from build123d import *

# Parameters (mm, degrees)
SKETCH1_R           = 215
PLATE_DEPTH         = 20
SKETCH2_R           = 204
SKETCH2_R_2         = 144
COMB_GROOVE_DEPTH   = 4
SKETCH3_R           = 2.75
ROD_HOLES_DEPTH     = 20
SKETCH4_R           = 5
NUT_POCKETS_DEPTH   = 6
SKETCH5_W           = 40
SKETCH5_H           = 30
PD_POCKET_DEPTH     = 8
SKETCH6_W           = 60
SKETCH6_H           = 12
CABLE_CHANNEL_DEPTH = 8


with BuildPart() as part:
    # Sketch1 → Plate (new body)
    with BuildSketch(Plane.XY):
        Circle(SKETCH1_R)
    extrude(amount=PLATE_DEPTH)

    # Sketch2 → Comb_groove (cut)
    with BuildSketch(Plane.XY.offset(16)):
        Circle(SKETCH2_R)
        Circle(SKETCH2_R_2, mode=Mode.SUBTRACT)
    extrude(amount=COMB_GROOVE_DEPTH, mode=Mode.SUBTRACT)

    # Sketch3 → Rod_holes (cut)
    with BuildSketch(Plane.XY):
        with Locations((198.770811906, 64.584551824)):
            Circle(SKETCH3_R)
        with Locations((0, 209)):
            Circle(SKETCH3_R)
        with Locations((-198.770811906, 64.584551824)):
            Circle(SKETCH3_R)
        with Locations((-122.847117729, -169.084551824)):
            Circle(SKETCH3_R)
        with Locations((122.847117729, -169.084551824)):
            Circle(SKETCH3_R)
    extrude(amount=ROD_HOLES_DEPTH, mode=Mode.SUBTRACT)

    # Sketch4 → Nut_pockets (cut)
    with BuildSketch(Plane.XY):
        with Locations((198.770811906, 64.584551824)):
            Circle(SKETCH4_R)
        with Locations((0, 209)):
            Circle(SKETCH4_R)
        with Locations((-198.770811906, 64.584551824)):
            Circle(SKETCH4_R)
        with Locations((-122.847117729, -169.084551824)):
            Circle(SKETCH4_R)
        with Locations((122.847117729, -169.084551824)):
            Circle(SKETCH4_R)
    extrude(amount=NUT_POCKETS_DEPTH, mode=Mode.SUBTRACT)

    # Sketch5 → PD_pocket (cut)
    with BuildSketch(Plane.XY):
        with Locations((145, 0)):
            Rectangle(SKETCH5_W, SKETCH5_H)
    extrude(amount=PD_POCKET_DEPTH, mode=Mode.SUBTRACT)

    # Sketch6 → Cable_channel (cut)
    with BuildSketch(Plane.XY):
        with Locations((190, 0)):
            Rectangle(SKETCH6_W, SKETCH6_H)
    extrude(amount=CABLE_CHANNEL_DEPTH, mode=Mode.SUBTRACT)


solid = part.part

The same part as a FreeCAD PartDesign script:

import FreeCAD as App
import Part
import Sketcher
from FreeCAD import Vector
Q = App.Units.Quantity

doc = App.newDocument("Part")
body = doc.addObject("PartDesign::Body", "Body")

# Sketch on XY plane
sketch1 = body.newObject("Sketcher::SketchObject", "Sketch")
sketch1.AttachmentSupport = (doc.getObject("XY_Plane"), [""])
sketch1.MapMode = "FlatFace"
sketch1.addGeometry(Part.Circle(Vector(0, 0, 0), Vector(0, 0, 1), 215), False)
sketch1.addConstraint([
    Sketcher.Constraint("Coincident", 0, 3, -1, 1),
    Sketcher.Constraint("Diameter", 0, Q("430 mm")),
])
pad1 = body.newObject("PartDesign::Pad", "Pad")
pad1.Profile = sketch1
pad1.Length = 20

# Sketch on XY plane
sketch2 = body.newObject("Sketcher::SketchObject", "Sketch001")
sketch2.AttachmentSupport = (doc.getObject("XY_Plane"), [""])
sketch2.MapMode = "FlatFace"
sketch2.AttachmentOffset = App.Placement(Vector(0, 0, 16), App.Rotation())
sketch2.addGeometry([
    Part.Circle(Vector(0, 0, 0), Vector(0, 0, 1), 204),
    Part.Circle(Vector(0, 0, 0), Vector(0, 0, 1), 144),
], False)
sketch2.addConstraint([
    Sketcher.Constraint("Coincident", 0, 3, -1, 1),
    Sketcher.Constraint("Coincident", 1, 3, -1, 1),
    Sketcher.Constraint("Diameter", 0, Q("408 mm")),
    Sketcher.Constraint("Diameter", 1, Q("288 mm")),
])
pocket1 = body.newObject("PartDesign::Pocket", "Pocket")
pocket1.Profile = sketch2
pocket1.Length = 4
pocket1.Reversed = True

# Sketch on XY plane
sketch3 = body.newObject("Sketcher::SketchObject", "Sketch002")
sketch3.AttachmentSupport = (doc.getObject("XY_Plane"), [""])
sketch3.MapMode = "FlatFace"
sketch3.addGeometry([
    Part.Circle(Vector(198.8, 64.6, 0), Vector(0, 0, 1), 2.8),  # 0
    Part.Circle(Vector(0, 209, 0), Vector(0, 0, 1), 2.8),  # 1
    Part.Circle(Vector(-198.8, 64.6, 0), Vector(0, 0, 1), 2.8),  # 2
    Part.Circle(Vector(-122.8, -169.1, 0), Vector(0, 0, 1), 2.8),  # 3
    Part.Circle(Vector(122.8, -169.1, 0), Vector(0, 0, 1), 2.8),  # 4
], False)
sketch3.addConstraint([
    Sketcher.Constraint("Equal", 0, 1),
    Sketcher.Constraint("Equal", 1, 2),
    Sketcher.Constraint("Equal", 2, 3),
    Sketcher.Constraint("Equal", 3, 4),
    Sketcher.Constraint("Symmetric", 0, 3, 2, 3, -2),
    Sketcher.Constraint("Symmetric", 3, 3, 4, 3, -2),
    Sketcher.Constraint("PointOnObject", 1, 3, -2),
    Sketcher.Constraint("Diameter", 0, Q("5.5 mm")),
    Sketcher.Constraint("DistanceY", -1, 1, 1, 3, Q("209 mm")),
    Sketcher.Constraint("DistanceX", -1, 1, 0, 3, Q("198.770812 mm")),
    Sketcher.Constraint("DistanceY", -1, 1, 0, 3, Q("64.584552 mm")),
    Sketcher.Constraint("DistanceY", 3, 3, -1, 1, Q("169.084552 mm")),
    Sketcher.Constraint("DistanceX", 3, 3, 0, 3, Q("321.61793 mm")),
])
pocket2 = body.newObject("PartDesign::Pocket", "Pocket001")
pocket2.Profile = sketch3
pocket2.Length = 20
pocket2.Reversed = True

# Sketch on XY plane
sketch4 = body.newObject("Sketcher::SketchObject", "Sketch003")
sketch4.AttachmentSupport = (doc.getObject("XY_Plane"), [""])
sketch4.MapMode = "FlatFace"
sketch4.addGeometry([
    Part.Circle(Vector(199, 65, 0), Vector(0, 0, 1), 5),  # 0
    Part.Circle(Vector(0, 209, 0), Vector(0, 0, 1), 5),  # 1
    Part.Circle(Vector(-199, 65, 0), Vector(0, 0, 1), 5),  # 2
    Part.Circle(Vector(-123, -169, 0), Vector(0, 0, 1), 5),  # 3
    Part.Circle(Vector(123, -169, 0), Vector(0, 0, 1), 5),  # 4
], False)
sketch4.addConstraint([
    Sketcher.Constraint("Equal", 0, 1),
    Sketcher.Constraint("Equal", 1, 2),
    Sketcher.Constraint("Equal", 2, 3),
    Sketcher.Constraint("Equal", 3, 4),
    Sketcher.Constraint("Symmetric", 0, 3, 2, 3, -2),
    Sketcher.Constraint("Symmetric", 3, 3, 4, 3, -2),
    Sketcher.Constraint("PointOnObject", 1, 3, -2),
    Sketcher.Constraint("Diameter", 0, Q("10 mm")),
    Sketcher.Constraint("DistanceY", -1, 1, 1, 3, Q("209 mm")),
    Sketcher.Constraint("DistanceX", -1, 1, 0, 3, Q("198.770812 mm")),
    Sketcher.Constraint("DistanceY", -1, 1, 0, 3, Q("64.584552 mm")),
    Sketcher.Constraint("DistanceY", 3, 3, -1, 1, Q("169.084552 mm")),
    Sketcher.Constraint("DistanceX", 3, 3, 0, 3, Q("321.61793 mm")),
])
pocket3 = body.newObject("PartDesign::Pocket", "Pocket002")
pocket3.Profile = sketch4
pocket3.Length = 6
pocket3.Reversed = True

# Sketch on XY plane
sketch5 = body.newObject("Sketcher::SketchObject", "Sketch004")
sketch5.AttachmentSupport = (doc.getObject("XY_Plane"), [""])
sketch5.MapMode = "FlatFace"
sketch5.addGeometry([
    Part.LineSegment(Vector(125, 15, 0), Vector(125, -15, 0)),
    Part.LineSegment(Vector(125, -15, 0), Vector(165, -15, 0)),
    Part.LineSegment(Vector(165, -15, 0), Vector(165, 15, 0)),
    Part.LineSegment(Vector(165, 15, 0), Vector(125, 15, 0)),
], False)
sketch5.addConstraint([
    Sketcher.Constraint("Coincident", 0, 2, 1, 1),
    Sketcher.Constraint("Coincident", 1, 2, 2, 1),
    Sketcher.Constraint("Coincident", 2, 2, 3, 1),
    Sketcher.Constraint("Coincident", 3, 2, 0, 1),
    Sketcher.Constraint("Vertical", 0),
    Sketcher.Constraint("Horizontal", 1),
    Sketcher.Constraint("Vertical", 2),
    Sketcher.Constraint("Horizontal", 3),
    Sketcher.Constraint("DistanceX", 1, 1, 1, 2, Q("40 mm")),
    Sketcher.Constraint("DistanceY", 0, 2, 0, 1, Q("30 mm")),
    Sketcher.Constraint("DistanceX", -1, 1, 0, 2, Q("125 mm")),
    Sketcher.Constraint("DistanceY", 0, 2, -1, 1, Q("15 mm")),
])
pocket4 = body.newObject("PartDesign::Pocket", "Pocket003")
pocket4.Profile = sketch5
pocket4.Length = 8
pocket4.Reversed = True

# Sketch on XY plane
sketch6 = body.newObject("Sketcher::SketchObject", "Sketch005")
sketch6.AttachmentSupport = (doc.getObject("XY_Plane"), [""])
sketch6.MapMode = "FlatFace"
sketch6.addGeometry([
    Part.LineSegment(Vector(160, 6, 0), Vector(160, -6, 0)),
    Part.LineSegment(Vector(160, -6, 0), Vector(220, -6, 0)),
    Part.LineSegment(Vector(220, -6, 0), Vector(220, 6, 0)),
    Part.LineSegment(Vector(220, 6, 0), Vector(160, 6, 0)),
], False)
sketch6.addConstraint([
    Sketcher.Constraint("Coincident", 0, 2, 1, 1),
    Sketcher.Constraint("Coincident", 1, 2, 2, 1),
    Sketcher.Constraint("Coincident", 2, 2, 3, 1),
    Sketcher.Constraint("Coincident", 3, 2, 0, 1),
    Sketcher.Constraint("Vertical", 0),
    Sketcher.Constraint("Horizontal", 1),
    Sketcher.Constraint("Vertical", 2),
    Sketcher.Constraint("Horizontal", 3),
    Sketcher.Constraint("DistanceX", 1, 1, 1, 2, Q("60 mm")),
    Sketcher.Constraint("DistanceY", 0, 2, 0, 1, Q("12 mm")),
    Sketcher.Constraint("DistanceX", -1, 1, 0, 2, Q("160 mm")),
    Sketcher.Constraint("DistanceY", 0, 2, -1, 1, Q("6 mm")),
])
pocket5 = body.newObject("PartDesign::Pocket", "Pocket004")
pocket5.Profile = sketch6
pocket5.Length = 8
pocket5.Reversed = True

doc.recompute()
